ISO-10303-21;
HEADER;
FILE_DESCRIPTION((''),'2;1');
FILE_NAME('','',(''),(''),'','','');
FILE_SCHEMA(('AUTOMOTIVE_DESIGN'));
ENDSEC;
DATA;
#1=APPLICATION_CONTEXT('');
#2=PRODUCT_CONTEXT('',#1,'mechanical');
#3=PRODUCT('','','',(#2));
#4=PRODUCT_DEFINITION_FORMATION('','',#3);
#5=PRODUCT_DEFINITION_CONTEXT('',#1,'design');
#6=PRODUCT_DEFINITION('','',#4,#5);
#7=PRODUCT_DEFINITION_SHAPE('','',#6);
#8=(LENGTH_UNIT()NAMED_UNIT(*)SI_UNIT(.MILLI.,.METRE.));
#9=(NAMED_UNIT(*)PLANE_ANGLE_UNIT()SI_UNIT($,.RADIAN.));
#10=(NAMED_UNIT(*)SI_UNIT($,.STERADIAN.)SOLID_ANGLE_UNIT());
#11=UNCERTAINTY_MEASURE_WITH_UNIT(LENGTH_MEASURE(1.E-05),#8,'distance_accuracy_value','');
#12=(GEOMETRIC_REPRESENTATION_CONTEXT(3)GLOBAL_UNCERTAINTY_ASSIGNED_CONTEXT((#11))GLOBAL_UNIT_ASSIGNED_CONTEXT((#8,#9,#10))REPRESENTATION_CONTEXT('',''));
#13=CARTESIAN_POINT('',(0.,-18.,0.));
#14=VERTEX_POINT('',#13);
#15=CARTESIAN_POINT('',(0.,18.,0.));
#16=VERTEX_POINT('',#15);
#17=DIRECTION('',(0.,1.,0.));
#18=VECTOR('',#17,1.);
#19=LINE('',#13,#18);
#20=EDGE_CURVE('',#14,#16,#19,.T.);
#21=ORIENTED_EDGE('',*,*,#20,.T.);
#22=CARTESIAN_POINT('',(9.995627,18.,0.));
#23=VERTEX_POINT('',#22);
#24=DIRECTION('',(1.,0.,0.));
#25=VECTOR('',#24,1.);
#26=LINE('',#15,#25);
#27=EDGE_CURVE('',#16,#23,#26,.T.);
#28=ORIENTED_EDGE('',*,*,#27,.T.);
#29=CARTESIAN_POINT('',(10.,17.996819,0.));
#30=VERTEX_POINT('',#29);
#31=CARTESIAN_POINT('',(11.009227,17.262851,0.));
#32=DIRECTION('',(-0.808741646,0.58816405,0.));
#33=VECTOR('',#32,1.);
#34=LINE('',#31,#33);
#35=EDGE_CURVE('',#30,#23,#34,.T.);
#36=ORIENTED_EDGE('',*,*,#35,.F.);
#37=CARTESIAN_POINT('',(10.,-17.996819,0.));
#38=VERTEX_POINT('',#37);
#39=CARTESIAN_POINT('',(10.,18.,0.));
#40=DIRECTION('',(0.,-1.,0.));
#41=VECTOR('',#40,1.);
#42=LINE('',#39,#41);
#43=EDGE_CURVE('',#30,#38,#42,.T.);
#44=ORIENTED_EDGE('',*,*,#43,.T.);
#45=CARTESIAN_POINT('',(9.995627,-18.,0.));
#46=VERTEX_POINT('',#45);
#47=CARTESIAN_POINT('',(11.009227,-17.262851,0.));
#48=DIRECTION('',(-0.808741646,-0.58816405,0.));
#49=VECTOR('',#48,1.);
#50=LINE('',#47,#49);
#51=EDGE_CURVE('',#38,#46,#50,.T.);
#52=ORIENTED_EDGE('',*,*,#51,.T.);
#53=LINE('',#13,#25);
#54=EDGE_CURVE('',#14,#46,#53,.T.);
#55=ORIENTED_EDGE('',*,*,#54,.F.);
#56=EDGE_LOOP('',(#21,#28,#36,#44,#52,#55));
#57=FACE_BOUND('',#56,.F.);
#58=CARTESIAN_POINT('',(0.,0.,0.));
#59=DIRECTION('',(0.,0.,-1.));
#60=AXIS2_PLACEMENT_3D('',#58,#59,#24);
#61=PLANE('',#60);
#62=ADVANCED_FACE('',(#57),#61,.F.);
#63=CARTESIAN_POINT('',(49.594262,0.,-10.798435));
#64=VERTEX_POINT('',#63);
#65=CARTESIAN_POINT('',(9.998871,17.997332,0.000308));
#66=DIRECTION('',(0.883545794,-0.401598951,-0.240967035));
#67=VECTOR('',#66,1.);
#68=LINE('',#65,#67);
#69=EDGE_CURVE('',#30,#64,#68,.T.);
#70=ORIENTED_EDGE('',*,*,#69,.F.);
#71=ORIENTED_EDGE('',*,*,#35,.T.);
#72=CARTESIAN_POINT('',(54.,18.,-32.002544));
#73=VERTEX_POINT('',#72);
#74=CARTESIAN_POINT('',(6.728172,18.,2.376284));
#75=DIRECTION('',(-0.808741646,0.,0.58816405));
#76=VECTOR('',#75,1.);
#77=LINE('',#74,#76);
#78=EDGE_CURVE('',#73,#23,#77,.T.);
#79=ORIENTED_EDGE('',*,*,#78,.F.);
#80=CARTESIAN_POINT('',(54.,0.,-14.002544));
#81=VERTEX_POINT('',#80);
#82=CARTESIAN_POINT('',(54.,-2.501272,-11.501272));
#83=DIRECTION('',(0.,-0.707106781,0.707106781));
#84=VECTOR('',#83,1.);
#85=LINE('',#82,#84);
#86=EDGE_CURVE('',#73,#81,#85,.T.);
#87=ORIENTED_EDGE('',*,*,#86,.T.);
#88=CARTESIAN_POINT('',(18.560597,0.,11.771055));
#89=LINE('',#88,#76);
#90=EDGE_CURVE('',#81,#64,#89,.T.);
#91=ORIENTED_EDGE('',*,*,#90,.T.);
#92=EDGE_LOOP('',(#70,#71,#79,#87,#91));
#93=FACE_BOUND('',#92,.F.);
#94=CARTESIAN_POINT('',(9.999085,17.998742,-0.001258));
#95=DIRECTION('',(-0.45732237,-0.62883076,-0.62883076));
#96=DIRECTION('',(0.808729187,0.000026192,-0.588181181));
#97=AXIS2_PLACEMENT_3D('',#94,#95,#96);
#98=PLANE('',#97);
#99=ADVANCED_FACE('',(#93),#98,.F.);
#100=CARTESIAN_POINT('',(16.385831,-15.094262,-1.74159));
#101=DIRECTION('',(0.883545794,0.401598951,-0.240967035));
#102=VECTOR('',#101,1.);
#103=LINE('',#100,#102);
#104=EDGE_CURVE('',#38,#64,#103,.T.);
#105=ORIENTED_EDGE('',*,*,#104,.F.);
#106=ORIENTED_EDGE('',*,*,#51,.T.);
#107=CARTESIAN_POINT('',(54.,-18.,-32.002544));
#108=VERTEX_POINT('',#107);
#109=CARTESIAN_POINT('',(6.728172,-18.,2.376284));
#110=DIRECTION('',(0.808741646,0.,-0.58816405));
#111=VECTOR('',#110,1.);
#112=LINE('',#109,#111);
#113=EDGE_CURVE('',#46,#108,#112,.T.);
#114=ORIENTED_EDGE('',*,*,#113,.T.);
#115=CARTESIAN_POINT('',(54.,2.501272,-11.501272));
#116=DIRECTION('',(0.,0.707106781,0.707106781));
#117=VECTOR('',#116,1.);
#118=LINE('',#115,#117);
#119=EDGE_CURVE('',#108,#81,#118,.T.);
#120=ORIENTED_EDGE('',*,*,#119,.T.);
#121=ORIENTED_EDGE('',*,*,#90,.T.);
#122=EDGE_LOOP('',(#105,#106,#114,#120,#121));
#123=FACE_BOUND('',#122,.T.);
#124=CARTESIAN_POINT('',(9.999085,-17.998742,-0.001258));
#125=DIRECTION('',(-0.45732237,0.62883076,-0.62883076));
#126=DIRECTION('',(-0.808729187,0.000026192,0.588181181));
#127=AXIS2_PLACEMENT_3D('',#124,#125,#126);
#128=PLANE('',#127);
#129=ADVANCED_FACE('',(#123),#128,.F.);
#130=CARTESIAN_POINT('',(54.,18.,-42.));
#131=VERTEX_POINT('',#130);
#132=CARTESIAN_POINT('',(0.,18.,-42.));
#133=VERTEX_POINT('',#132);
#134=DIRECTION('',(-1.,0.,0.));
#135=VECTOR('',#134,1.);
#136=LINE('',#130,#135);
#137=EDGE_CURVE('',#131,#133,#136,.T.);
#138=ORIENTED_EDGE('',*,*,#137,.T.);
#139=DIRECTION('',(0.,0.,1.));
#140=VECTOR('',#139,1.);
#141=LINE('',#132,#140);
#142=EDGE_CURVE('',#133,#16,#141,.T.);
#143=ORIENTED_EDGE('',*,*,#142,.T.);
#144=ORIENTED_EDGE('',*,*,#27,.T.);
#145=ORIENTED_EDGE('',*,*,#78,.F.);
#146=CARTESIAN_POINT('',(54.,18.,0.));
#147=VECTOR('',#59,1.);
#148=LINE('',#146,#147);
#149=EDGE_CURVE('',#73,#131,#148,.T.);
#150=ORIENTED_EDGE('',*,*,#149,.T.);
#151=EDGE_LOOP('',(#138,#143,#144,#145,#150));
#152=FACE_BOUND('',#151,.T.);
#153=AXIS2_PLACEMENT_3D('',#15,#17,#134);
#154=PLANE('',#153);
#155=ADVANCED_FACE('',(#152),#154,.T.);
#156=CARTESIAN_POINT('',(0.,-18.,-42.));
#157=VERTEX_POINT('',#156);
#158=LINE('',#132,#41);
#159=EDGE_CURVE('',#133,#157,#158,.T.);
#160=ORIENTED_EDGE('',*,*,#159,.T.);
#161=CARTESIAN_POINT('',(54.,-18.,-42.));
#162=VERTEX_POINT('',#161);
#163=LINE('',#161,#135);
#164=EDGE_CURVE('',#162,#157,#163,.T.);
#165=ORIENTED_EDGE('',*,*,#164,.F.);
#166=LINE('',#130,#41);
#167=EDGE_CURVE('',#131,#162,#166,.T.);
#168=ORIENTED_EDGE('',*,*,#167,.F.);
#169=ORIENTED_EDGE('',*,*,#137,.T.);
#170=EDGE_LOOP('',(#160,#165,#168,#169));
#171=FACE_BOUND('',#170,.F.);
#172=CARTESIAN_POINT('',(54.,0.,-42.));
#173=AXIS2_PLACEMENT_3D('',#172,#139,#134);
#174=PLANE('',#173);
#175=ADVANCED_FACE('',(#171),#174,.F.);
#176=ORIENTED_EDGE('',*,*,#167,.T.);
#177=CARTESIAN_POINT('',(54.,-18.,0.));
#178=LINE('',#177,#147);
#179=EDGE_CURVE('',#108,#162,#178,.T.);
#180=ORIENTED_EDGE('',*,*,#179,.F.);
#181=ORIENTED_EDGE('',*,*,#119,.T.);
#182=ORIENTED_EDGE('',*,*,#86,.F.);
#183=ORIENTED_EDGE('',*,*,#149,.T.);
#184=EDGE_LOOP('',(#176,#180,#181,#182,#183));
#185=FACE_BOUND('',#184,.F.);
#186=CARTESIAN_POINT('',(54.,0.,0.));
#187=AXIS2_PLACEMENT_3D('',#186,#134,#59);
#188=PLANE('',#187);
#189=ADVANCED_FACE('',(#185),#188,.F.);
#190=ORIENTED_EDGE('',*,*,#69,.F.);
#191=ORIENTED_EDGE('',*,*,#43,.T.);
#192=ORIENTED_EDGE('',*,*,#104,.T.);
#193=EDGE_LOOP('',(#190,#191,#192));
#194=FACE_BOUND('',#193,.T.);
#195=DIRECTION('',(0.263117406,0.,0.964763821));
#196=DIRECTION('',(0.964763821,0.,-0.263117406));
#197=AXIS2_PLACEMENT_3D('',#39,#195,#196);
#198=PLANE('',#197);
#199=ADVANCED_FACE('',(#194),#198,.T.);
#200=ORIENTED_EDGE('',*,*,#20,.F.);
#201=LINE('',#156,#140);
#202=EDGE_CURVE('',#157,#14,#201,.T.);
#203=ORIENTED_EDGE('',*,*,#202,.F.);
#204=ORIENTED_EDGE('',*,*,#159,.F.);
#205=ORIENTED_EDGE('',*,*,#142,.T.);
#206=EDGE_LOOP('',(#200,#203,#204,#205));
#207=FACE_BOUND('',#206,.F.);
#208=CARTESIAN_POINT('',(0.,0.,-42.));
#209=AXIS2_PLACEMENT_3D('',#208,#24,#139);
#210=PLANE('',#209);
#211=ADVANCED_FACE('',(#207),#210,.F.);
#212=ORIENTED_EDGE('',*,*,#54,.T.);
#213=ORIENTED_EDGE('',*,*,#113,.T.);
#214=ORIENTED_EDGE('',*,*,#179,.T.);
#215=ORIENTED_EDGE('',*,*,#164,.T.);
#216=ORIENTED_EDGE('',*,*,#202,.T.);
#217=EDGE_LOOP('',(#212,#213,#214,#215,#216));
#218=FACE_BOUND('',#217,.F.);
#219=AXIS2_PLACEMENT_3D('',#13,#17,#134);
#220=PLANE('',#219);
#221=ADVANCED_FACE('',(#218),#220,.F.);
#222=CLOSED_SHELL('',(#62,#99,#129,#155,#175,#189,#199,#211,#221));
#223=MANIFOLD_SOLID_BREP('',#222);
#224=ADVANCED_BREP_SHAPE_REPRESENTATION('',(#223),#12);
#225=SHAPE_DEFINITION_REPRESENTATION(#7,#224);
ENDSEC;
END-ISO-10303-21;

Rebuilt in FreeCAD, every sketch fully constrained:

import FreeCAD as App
import Part
import Sketcher
Q = App.Units.Quantity

doc = App.newDocument("Part")
body = doc.addObject("PartDesign::Body", "Body")

# Sketch on XZ plane
sketch1 = body.newObject("Sketcher::SketchObject", "Sketch")
sketch1.AttachmentSupport = (doc.getObject("XZ_Plane"), [""])
sketch1.MapMode = "FlatFace"
sketch1.addGeometry(Part.LineSegment(App.Vector(0, -42, 0), App.Vector(0, 0, 0)), False)
sketch1.addGeometry(Part.LineSegment(App.Vector(0, 0, 0), App.Vector(54, 0, 0)), False)
sketch1.addGeometry(Part.LineSegment(App.Vector(54, 0, 0), App.Vector(54, -42, 0)), False)
sketch1.addGeometry(Part.LineSegment(App.Vector(54, -42, 0), App.Vector(0, -42, 0)), False)
sketch1.addConstraint(Sketcher.Constraint("Coincident", 0, 2, 1, 1))
sketch1.addConstraint(Sketcher.Constraint("Coincident", 1, 2, 2, 1))
sketch1.addConstraint(Sketcher.Constraint("Coincident", 2, 2, 3, 1))
sketch1.addConstraint(Sketcher.Constraint("Coincident", 3, 2, 0, 1))
sketch1.addConstraint(Sketcher.Constraint("Vertical", 0))
sketch1.addConstraint(Sketcher.Constraint("Horizontal", 1))
sketch1.addConstraint(Sketcher.Constraint("Vertical", 2))
sketch1.addConstraint(Sketcher.Constraint("Horizontal", 3))
sketch1.addConstraint(Sketcher.Constraint("Coincident", 0, 2, -1, 1))
sketch1.addConstraint(Sketcher.Constraint("DistanceX", 1, 1, 1, 2, Q("54 mm")))
sketch1.addConstraint(Sketcher.Constraint("DistanceY", 0, 1, 0, 2, Q("42 mm")))
pad1 = body.newObject("PartDesign::Pad", "Pad")
pad1.Profile = sketch1
pad1.Length = 36
pad1.Midplane = True

# Sketch on XZ plane
sketch2 = body.newObject("Sketcher::SketchObject", "Sketch001")
sketch2.AttachmentSupport = (doc.getObject("XZ_Plane"), [""])
sketch2.MapMode = "FlatFace"
sketch2.AttachmentOffset = App.Placement(App.Vector(0, 0, -18), App.Rotation())
sketch2.addGeometry(Part.LineSegment(App.Vector(54, -12, 0), App.Vector(10, 0, 0)), False)
sketch2.addGeometry(Part.LineSegment(App.Vector(10, 0, 0), App.Vector(54, 0, 0)), False)
sketch2.addGeometry(Part.LineSegment(App.Vector(54, 0, 0), App.Vector(54, -12, 0)), False)
sketch2.addConstraint(Sketcher.Constraint("Coincident", 0, 2, 1, 1))
sketch2.addConstraint(Sketcher.Constraint("Coincident", 1, 2, 2, 1))
sketch2.addConstraint(Sketcher.Constraint("Coincident", 2, 2, 0, 1))
sketch2.addConstraint(Sketcher.Constraint("Horizontal", 1))
sketch2.addConstraint(Sketcher.Constraint("Vertical", 2))
sketch2.addConstraint(Sketcher.Constraint("PointOnObject", 0, 2, -1))
sketch2.addConstraint(Sketcher.Constraint("DistanceX", -1, 1, 0, 2, Q("10 mm")))
sketch2.addConstraint(Sketcher.Constraint("DistanceX", 1, 1, 1, 2, Q("44 mm")))
sketch2.addConstraint(Sketcher.Constraint("DistanceY", 2, 2, 2, 1, Q("12 mm")))
pocket1 = body.newObject("PartDesign::Pocket", "Pocket")
pocket1.Profile = sketch2
pocket1.Length = 40
pocket1.Reversed = True

# Sketch on an angled plane
sketch3 = body.newObject("Sketcher::SketchObject", "Sketch002")
sketch3.Placement = App.Placement(App.Vector(10, 18, 0), App.Rotation(App.Vector(0.808729187, 0.000026192, -0.588181181), App.Vector(0.369882889, -0.777542201, 0.508541811), App.Vector(-0.45732237, -0.62883076, -0.62883076), "ZXY"))
sketch3.addGeometry(Part.LineSegment(App.Vector(-15, 29, 0), App.Vector(-15, -12, 0)), False)
sketch3.addGeometry(Part.LineSegment(App.Vector(-15, -12, 0), App.Vector(94, -12, 0)), False)
sketch3.addGeometry(Part.LineSegment(App.Vector(94, -12, 0), App.Vector(94, 29, 0)), False)
sketch3.addGeometry(Part.LineSegment(App.Vector(94, 29, 0), App.Vector(-15, 29, 0)), False)
sketch3.addConstraint(Sketcher.Constraint("Coincident", 0, 2, 1, 1))
sketch3.addConstraint(Sketcher.Constraint("Coincident", 1, 2, 2, 1))
sketch3.addConstraint(Sketcher.Constraint("Coincident", 2, 2, 3, 1))
sketch3.addConstraint(Sketcher.Constraint("Coincident", 3, 2, 0, 1))
sketch3.addConstraint(Sketcher.Constraint("Vertical", 0))
sketch3.addConstraint(Sketcher.Constraint("Horizontal", 1))
sketch3.addConstraint(Sketcher.Constraint("Vertical", 2))
sketch3.addConstraint(Sketcher.Constraint("Horizontal", 3))
sketch3.addConstraint(Sketcher.Constraint("DistanceX", 1, 1, 1, 2, Q("108.8713 mm")))
sketch3.addConstraint(Sketcher.Constraint("DistanceY", 0, 2, 0, 1, Q("41.1384 mm")))
sketch3.addConstraint(Sketcher.Constraint("DistanceX", -1, 1, 1, 2, Q("93.717 mm")))
sketch3.addConstraint(Sketcher.Constraint("DistanceY", 0, 2, -1, 1, Q("12.3218 mm")))
pocket2 = body.newObject("PartDesign::Pocket", "Pocket001")
pocket2.Profile = sketch3
pocket2.Length = 40
doc.recompute()

mirrored = body.newObject("PartDesign::Mirrored", "Mirrored")
mirrored.Originals = [pocket2]
mirrored.MirrorPlane = (doc.getObject("XZ_Plane"), [""])
body.Tip = mirrored

doc.recompute()
